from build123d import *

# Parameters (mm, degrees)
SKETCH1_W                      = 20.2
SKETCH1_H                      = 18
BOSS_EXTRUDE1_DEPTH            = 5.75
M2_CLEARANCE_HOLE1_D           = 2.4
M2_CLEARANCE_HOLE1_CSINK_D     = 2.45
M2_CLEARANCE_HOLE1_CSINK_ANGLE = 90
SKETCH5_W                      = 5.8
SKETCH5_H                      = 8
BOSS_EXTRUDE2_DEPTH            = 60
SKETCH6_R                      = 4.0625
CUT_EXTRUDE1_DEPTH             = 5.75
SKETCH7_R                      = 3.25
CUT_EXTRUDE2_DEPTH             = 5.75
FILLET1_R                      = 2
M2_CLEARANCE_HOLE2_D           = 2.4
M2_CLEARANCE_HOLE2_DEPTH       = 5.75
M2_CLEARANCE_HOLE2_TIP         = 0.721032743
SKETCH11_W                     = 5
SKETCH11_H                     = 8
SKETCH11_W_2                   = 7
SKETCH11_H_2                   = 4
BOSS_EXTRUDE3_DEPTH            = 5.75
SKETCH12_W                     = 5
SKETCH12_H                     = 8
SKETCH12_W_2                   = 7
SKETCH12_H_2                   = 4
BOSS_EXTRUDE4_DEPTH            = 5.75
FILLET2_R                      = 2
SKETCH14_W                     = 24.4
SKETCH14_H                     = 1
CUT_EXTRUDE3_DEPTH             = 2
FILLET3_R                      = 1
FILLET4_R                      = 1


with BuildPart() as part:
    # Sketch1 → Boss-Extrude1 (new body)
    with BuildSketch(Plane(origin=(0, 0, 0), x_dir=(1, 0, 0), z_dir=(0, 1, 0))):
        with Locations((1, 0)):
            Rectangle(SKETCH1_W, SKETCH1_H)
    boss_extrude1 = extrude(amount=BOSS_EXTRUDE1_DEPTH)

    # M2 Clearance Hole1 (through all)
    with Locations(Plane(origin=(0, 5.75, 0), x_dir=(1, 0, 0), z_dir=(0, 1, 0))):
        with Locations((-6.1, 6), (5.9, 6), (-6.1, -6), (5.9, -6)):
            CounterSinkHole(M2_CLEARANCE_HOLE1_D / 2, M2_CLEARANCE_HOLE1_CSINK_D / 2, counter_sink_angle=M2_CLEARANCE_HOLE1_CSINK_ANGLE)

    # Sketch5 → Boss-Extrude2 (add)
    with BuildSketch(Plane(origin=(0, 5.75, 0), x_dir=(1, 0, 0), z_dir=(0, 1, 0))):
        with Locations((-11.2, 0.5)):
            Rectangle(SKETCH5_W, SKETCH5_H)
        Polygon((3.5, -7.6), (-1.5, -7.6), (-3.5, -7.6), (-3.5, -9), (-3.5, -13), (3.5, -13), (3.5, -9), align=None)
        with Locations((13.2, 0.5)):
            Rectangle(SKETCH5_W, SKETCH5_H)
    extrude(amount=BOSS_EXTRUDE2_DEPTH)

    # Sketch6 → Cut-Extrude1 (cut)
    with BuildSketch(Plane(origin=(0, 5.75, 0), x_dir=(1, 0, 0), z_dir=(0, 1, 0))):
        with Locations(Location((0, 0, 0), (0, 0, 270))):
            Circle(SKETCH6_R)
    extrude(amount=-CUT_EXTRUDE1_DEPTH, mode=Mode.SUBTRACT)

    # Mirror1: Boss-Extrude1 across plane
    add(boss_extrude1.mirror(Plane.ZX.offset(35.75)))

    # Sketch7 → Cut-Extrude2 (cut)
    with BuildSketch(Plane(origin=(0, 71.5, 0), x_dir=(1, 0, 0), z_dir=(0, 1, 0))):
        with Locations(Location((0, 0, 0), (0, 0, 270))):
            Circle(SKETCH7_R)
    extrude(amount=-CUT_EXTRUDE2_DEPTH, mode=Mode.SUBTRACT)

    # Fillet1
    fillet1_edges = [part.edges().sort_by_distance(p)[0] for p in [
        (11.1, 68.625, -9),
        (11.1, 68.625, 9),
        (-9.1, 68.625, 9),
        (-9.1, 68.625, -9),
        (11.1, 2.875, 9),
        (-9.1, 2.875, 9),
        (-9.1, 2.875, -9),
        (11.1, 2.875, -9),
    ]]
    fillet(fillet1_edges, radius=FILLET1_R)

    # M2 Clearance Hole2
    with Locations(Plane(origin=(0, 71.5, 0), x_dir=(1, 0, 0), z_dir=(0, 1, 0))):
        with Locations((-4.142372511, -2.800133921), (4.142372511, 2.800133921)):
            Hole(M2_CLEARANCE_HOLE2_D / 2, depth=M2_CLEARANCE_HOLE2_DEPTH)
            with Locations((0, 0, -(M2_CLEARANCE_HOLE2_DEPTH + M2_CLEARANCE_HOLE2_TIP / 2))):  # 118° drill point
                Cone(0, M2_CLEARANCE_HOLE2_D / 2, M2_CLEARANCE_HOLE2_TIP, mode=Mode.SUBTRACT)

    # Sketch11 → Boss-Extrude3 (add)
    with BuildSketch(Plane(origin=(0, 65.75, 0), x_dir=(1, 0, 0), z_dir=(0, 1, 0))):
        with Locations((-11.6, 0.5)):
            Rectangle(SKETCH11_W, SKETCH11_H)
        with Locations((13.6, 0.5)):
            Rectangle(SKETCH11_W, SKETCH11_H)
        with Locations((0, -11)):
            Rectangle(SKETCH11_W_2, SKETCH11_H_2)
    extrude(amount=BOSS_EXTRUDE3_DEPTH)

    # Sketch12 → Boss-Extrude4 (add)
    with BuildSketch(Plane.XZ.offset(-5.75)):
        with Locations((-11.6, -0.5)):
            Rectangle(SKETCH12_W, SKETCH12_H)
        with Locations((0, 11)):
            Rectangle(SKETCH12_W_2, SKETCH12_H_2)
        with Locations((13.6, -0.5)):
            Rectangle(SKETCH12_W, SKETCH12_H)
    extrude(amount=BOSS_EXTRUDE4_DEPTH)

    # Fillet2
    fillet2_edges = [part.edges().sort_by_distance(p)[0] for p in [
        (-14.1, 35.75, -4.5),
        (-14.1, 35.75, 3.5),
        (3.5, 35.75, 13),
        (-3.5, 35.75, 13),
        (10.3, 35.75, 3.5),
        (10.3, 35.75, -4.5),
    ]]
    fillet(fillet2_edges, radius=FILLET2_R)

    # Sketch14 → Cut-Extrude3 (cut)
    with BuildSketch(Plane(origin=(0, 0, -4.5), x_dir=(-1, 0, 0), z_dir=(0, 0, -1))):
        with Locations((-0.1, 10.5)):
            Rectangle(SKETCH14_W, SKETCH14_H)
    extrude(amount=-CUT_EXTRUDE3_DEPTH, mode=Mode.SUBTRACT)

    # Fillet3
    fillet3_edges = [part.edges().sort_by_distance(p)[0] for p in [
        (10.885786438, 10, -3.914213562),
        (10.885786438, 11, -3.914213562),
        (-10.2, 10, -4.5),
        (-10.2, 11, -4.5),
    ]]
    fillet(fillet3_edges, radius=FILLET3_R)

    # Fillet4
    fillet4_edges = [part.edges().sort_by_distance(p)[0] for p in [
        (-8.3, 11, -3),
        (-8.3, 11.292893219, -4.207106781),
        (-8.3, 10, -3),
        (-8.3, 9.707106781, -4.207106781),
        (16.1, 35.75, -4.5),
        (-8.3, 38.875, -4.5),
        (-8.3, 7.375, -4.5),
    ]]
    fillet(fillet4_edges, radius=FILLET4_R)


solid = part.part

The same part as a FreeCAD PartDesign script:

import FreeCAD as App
import Part
import Sketcher

V = App.Vector
Q = App.Units.Quantity


def edges_at(feature, points):
    """Names of the edges that pass closest to the given points."""
    edges = feature.Shape.Edges
    near = lambda p: min(range(len(edges)), key=lambda i: edges[i].distToShape(Part.Vertex(*p))[0])
    return sorted({f"Edge{near(p) + 1}" for p in points})

doc = App.newDocument("Part")
body = doc.addObject("PartDesign::Body", "Body")

# Sketch on XZ plane
sketch1 = body.newObject("Sketcher::SketchObject", "Sketch")
sketch1.AttachmentSupport = (doc.getObject("XZ_Plane"), [""])
sketch1.MapMode = "FlatFace"
sketch1.addGeometry([
    Part.LineSegment(V(-9, -9, 0), V(-9, 9, 0)),
    Part.LineSegment(V(-9, 9, 0), V(11, 9, 0)),
    Part.LineSegment(V(11, 9, 0), V(11, -9, 0)),
    Part.LineSegment(V(11, -9, 0), V(-9, -9, 0)),
], False)
sketch1.addConstraint([
    Sketcher.Constraint("Coincident", 0, 2, 1, 1),
    Sketcher.Constraint("Coincident", 1, 2, 2, 1),
    Sketcher.Constraint("Coincident", 2, 2, 3, 1),
    Sketcher.Constraint("Coincident", 3, 2, 0, 1),
    Sketcher.Constraint("Vertical", 0),
    Sketcher.Constraint("Horizontal", 1),
    Sketcher.Constraint("Vertical", 2),
    Sketcher.Constraint("Horizontal", 3),
    Sketcher.Constraint("DistanceY", 0, 1, 0, 2, Q("18 mm")),
    Sketcher.Constraint("DistanceX", 1, 1, 1, 2, Q("20.2 mm")),
    Sketcher.Constraint("DistanceY", -1, 1, 0, 2, Q("9 mm")),
    Sketcher.Constraint("DistanceX", 0, 2, -1, 1, Q("9.1 mm")),
])
pad1 = body.newObject("PartDesign::Pad", "Pad")
pad1.Profile = sketch1
pad1.Length = 5.75
pad1.Reversed = True

# Sketch on XZ plane
sketch2 = body.newObject("Sketcher::SketchObject", "Sketch001")
sketch2.AttachmentSupport = (doc.getObject("XZ_Plane"), [""])
sketch2.MapMode = "FlatFace"
sketch2.AttachmentOffset = App.Placement(V(0, 0, -5.75), App.Rotation())
sketch2.addGeometry([
    Part.Circle(V(-6.1, -6, 0), V(0, 0, 1), 1.2),
    Part.Circle(V(5.9, -6, 0), V(0, 0, 1), 1.2),
    Part.Circle(V(-6.1, 6, 0), V(0, 0, 1), 1.2),
    Part.Circle(V(5.9, 6, 0), V(0, 0, 1), 1.2),
], False)
sketch2.addConstraint([
    Sketcher.Constraint("Equal", 0, 1),
    Sketcher.Constraint("Equal", 1, 2),
    Sketcher.Constraint("Equal", 2, 3),
    Sketcher.Constraint("Symmetric", 0, 3, 2, 3, -1),
    Sketcher.Constraint("Symmetric", 1, 3, 3, 3, -1),
    Sketcher.Constraint("Horizontal", 0, 3, 1, 3),
    Sketcher.Constraint("Diameter", 0, Q("2.4 mm")),
    Sketcher.Constraint("DistanceY", 0, 3, -1, 1, Q("6 mm")),
    Sketcher.Constraint("DistanceX", 0, 3, 1, 3, Q("12 mm")),
    Sketcher.Constraint("DistanceX", 0, 3, -1, 1, Q("6.1 mm")),
])
doc.recompute()
hole = body.newObject("PartDesign::Hole", "Hole")
hole.Profile = sketch2
hole.ThreadType = "None"
hole.Diameter = 2.4
hole.DepthType = "ThroughAll"
hole.HoleCutType = "Countersink"
hole.HoleCutDiameter = 2.45
hole.HoleCutCountersinkAngle = 90
hole.Reversed = True

# Sketch on XZ plane
sketch3 = body.newObject("Sketcher::SketchObject", "Sketch002")
sketch3.AttachmentSupport = (doc.getObject("XZ_Plane"), [""])
sketch3.MapMode = "FlatFace"
sketch3.AttachmentOffset = App.Placement(V(0, 0, -5.75), App.Rotation())
sketch3.addGeometry([
    Part.LineSegment(V(-14, -4, 0), V(-14, 4, 0)),  # 0
    Part.LineSegment(V(-14, 4, 0), V(-8, 4, 0)),  # 1
    Part.LineSegment(V(-8, 4, 0), V(-8, -4, 0)),  # 2
    Part.LineSegment(V(-8, -4, 0), V(-14, -4, 0)),  # 3
    Part.LineSegment(V(4, 8, 0), V(-4, 8, 0)),  # 4
    Part.LineSegment(V(-4, 8, 0), V(-4, 13, 0)),  # 5
    Part.LineSegment(V(-4, 13, 0), V(4, 13, 0)),  # 6
    Part.LineSegment(V(4, 13, 0), V(4, 8, 0)),  # 7
    Part.LineSegment(V(10, -4, 0), V(10, 4, 0)),  # 8
    Part.LineSegment(V(10, 4, 0), V(16, 4, 0)),  # 9
    Part.LineSegment(V(16, 4, 0), V(16, -4, 0)),  # 10
    Part.LineSegment(V(16, -4, 0), V(10, -4, 0)),  # 11
], False)
sketch3.addConstraint([
    Sketcher.Constraint("Coincident", 0, 2, 1, 1),
    Sketcher.Constraint("Coincident", 1, 2, 2, 1),
    Sketcher.Constraint("Coincident", 2, 2, 3, 1),
    Sketcher.Constraint("Coincident", 3, 2, 0, 1),
    Sketcher.Constraint("Coincident", 4, 2, 5, 1),
    Sketcher.Constraint("Coincident", 5, 2, 6, 1),
    Sketcher.Constraint("Coincident", 6, 2, 7, 1),
    Sketcher.Constraint("Coincident", 7, 2, 4, 1),
    Sketcher.Constraint("Coincident", 8, 2, 9, 1),
    Sketcher.Constraint("Coincident", 9, 2, 10, 1),
    Sketcher.Constraint("Coincident", 10, 2, 11, 1),
    Sketcher.Constraint("Coincident", 11, 2, 8, 1),
    Sketcher.Constraint("Vertical", 0),
    Sketcher.Constraint("Horizontal", 1),
    Sketcher.Constraint("Vertical", 2),
    Sketcher.Constraint("Horizontal", 3),
    Sketcher.Constraint("Horizontal", 4),
    Sketcher.Constraint("Vertical", 5),
    Sketcher.Constraint("Horizontal", 6),
    Sketcher.Constraint("Vertical", 7),
    Sketcher.Constraint("Vertical", 8),
    Sketcher.Constraint("Horizontal", 9),
    Sketcher.Constraint("Vertical", 10),
    Sketcher.Constraint("Horizontal", 11),
    Sketcher.Constraint("Horizontal", 1, 2, 8, 2),
    Sketcher.Constraint("Horizontal", 3, 2, 10, 2),
    Sketcher.Constraint("Equal", 3, 9),
    Sketcher.Constraint("DistanceX", 4, 2, 4, 1, Q("7 mm")),
    Sketcher.Constraint("DistanceY", 0, 1, 0, 2, Q("8 mm")),
    Sketcher.Constraint("DistanceX", 1, 1, 1, 2, Q("5.8 mm")),
    Sketcher.Constraint("DistanceY", 5, 1, 5, 2, Q("5.4 mm")),
    Sketcher.Constraint("DistanceY", -1, 1, 5, 2, Q("13 mm")),
    Sketcher.Constraint("DistanceX", 0, 2, -1, 1, Q("14.1 mm")),
    Sketcher.Constraint("DistanceY", -1, 1, 0, 2, Q("3.5 mm")),
    Sketcher.Constraint("DistanceX", 4, 2, -1, 1, Q("3.5 mm")),
    Sketcher.Constraint("DistanceX", -1, 1, 8, 2, Q("10.3 mm")),
])
pad2 = body.newObject("PartDesign::Pad", "Pad001")
pad2.Profile = sketch3
pad2.Length = 60
pad2.Reversed = True

# Sketch on XZ plane
sketch4 = body.newObject("Sketcher::SketchObject", "Sketch003")
sketch4.AttachmentSupport = (doc.getObject("XZ_Plane"), [""])
sketch4.MapMode = "FlatFace"
sketch4.AttachmentOffset = App.Placement(V(0, 0, -5.75), App.Rotation())
sketch4.addGeometry(Part.Circle(V(0, 0, 0), V(0, 0, 1), 4.1), False)
sketch4.addConstraint([
    Sketcher.Constraint("Coincident", 0, 3, -1, 1),
    Sketcher.Constraint("Diameter", 0, Q("8.125 mm")),
])
pocket1 = body.newObject("PartDesign::Pocket", "Pocket")
pocket1.Profile = sketch4
pocket1.Length = 5.75
pocket1.Reversed = True
doc.recompute()

datumplane = body.newObject("PartDesign::Plane", "DatumPlane")
datumplane.AttachmentSupport = (doc.getObject("XZ_Plane"), [""])
datumplane.MapMode = "FlatFace"
datumplane.AttachmentOffset = App.Placement(V(0, 0, -35.75), App.Rotation())
mirrored = body.newObject("PartDesign::Mirrored", "Mirrored")
mirrored.Originals = [pad1]
mirrored.MirrorPlane = (datumplane, [""])
body.Tip = mirrored

# Sketch on XZ plane
sketch5 = body.newObject("Sketcher::SketchObject", "Sketch004")
sketch5.AttachmentSupport = (doc.getObject("XZ_Plane"), [""])
sketch5.MapMode = "FlatFace"
sketch5.AttachmentOffset = App.Placement(V(0, 0, -71.5), App.Rotation())
sketch5.addGeometry(Part.Circle(V(0, 0, 0), V(0, 0, 1), 3.2), False)
sketch5.addConstraint([
    Sketcher.Constraint("Coincident", 0, 3, -1, 1),
    Sketcher.Constraint("Diameter", 0, Q("6.5 mm")),
])
pocket2 = body.newObject("PartDesign::Pocket", "Pocket001")
pocket2.Profile = sketch5
pocket2.Length = 5.75
pocket2.Reversed = True
doc.recompute()

fillet = body.newObject("PartDesign::Fillet", "Fillet")
fillet.Base = (pocket2, edges_at(pocket2, [
    (11.1, 68.625, -9),
    (11.1, 68.625, 9),
    (-9.1, 68.625, 9),
    (-9.1, 68.625, -9),
    (11.1, 2.875, 9),
    (-9.1, 2.875, 9),
    (-9.1, 2.875, -9),
    (11.1, 2.875, -9),
]))
fillet.Radius = 2

# Sketch on XZ plane
sketch6 = body.newObject("Sketcher::SketchObject", "Sketch005")
sketch6.AttachmentSupport = (doc.getObject("XZ_Plane"), [""])
sketch6.MapMode = "FlatFace"
sketch6.AttachmentOffset = App.Placement(V(0, 0, -71.5), App.Rotation())
sketch6.addGeometry([
    Part.Circle(V(-4.1, 2.8, 0), V(0, 0, 1), 1.2),
    Part.Circle(V(4.1, -2.8, 0), V(0, 0, 1), 1.2),
], False)
sketch6.addConstraint([
    Sketcher.Constraint("Equal", 0, 1),
    Sketcher.Constraint("Symmetric", 0, 3, 1, 3, -1, 1),
    Sketcher.Constraint("Diameter", 0, Q("2.4 mm")),
    Sketcher.Constraint("DistanceX", 0, 3, -1, 1, Q("4.142373 mm")),
    Sketcher.Constraint("DistanceY", -1, 1, 0, 3, Q("2.800134 mm")),
])
doc.recompute()
hole2 = body.newObject("PartDesign::Hole", "Hole001")
hole2.Profile = sketch6
hole2.ThreadType = "None"
hole2.Diameter = 2.4
hole2.DepthType = "Dimension"
hole2.Depth = 5.75
hole2.DrillPoint = "Angled"
hole2.DrillPointAngle = 118
hole2.Reversed = True

# Sketch on XZ plane
sketch7 = body.newObject("Sketcher::SketchObject", "Sketch006")
sketch7.AttachmentSupport = (doc.getObject("XZ_Plane"), [""])
sketch7.MapMode = "FlatFace"
sketch7.AttachmentOffset = App.Placement(V(0, 0, -65.75), App.Rotation())
sketch7.addGeometry([
    Part.LineSegment(V(-14.1, -4.5, 0), V(-14.1, 3.5, 0)),  # 0
    Part.LineSegment(V(-14.1, 3.5, 0), V(-9.1, 3.5, 0)),  # 1
    Part.LineSegment(V(-9.1, 3.5, 0), V(-9.1, -4.5, 0)),  # 2
    Part.LineSegment(V(-9.1, -4.5, 0), V(-14.1, -4.5, 0)),  # 3
    Part.LineSegment(V(11.1, -4.5, 0), V(11.1, 3.5, 0)),  # 4
    Part.LineSegment(V(11.1, 3.5, 0), V(16.1, 3.5, 0)),  # 5
    Part.LineSegment(V(16.1, 3.5, 0), V(16.1, -4.5, 0)),  # 6
    Part.LineSegment(V(16.1, -4.5, 0), V(11.1, -4.5, 0)),  # 7
    Part.LineSegment(V(-3.5, 9, 0), V(-3.5, 13, 0)),  # 8
    Part.LineSegment(V(-3.5, 13, 0), V(3.5, 13, 0)),  # 9
    Part.LineSegment(V(3.5, 13, 0), V(3.5, 9, 0)),  # 10
    Part.LineSegment(V(3.5, 9, 0), V(-3.5, 9, 0)),  # 11
], False)
sketch7.addConstraint([
    Sketcher.Constraint("Coincident", 0, 2, 1, 1),
    Sketcher.Constraint("Coincident", 1, 2, 2, 1),
    Sketcher.Constraint("Coincident", 2, 2, 3, 1),
    Sketcher.Constraint("Coincident", 3, 2, 0, 1),
    Sketcher.Constraint("Coincident", 4, 2, 5, 1),
    Sketcher.Constraint("Coincident", 5, 2, 6, 1),
    Sketcher.Constraint("Coincident", 6, 2, 7, 1),
    Sketcher.Constraint("Coincident", 7, 2, 4, 1),
    Sketcher.Constraint("Coincident", 8, 2, 9, 1),
    Sketcher.Constraint("Coincident", 9, 2, 10, 1),
    Sketcher.Constraint("Coincident", 10, 2, 11, 1),
    Sketcher.Constraint("Coincident", 11, 2, 8, 1),
    Sketcher.Constraint("Vertical", 0),
    Sketcher.Constraint("Horizontal", 1),
    Sketcher.Constraint("Vertical", 2),
    Sketcher.Constraint("Horizontal", 3),
    Sketcher.Constraint("Vertical", 4),
    Sketcher.Constraint("Horizontal", 5),
    Sketcher.Constraint("Vertical", 6),
    Sketcher.Constraint("Horizontal", 7),
    Sketcher.Constraint("Vertical", 8),
    Sketcher.Constraint("Horizontal", 9),
    Sketcher.Constraint("Vertical", 10),
    Sketcher.Constraint("Horizontal", 11),
    Sketcher.Constraint("Horizontal", 1, 2, 4, 2),
    Sketcher.Constraint("Horizontal", 3, 2, 6, 2),
    Sketcher.Constraint("Equal", 3, 5),
    Sketcher.Constraint("DistanceX", 1, 1, 1, 2, Q("5 mm")),
    Sketcher.Constraint("DistanceX", 9, 1, 9, 2, Q("7 mm")),
    Sketcher.Constraint("DistanceY", 0, 1, 0, 2, Q("8 mm")),
    Sketcher.Constraint("DistanceY", 8, 1, 8, 2, Q("4 mm")),
    Sketcher.Constraint("DistanceY", -1, 1, 8, 2, Q("13 mm")),
    Sketcher.Constraint("DistanceX", 0, 2, -1, 1, Q("14.1 mm")),
    Sketcher.Constraint("DistanceY", -1, 1, 0, 2, Q("3.5 mm")),
    Sketcher.Constraint("DistanceX", -1, 1, 4, 2, Q("11.1 mm")),
    Sketcher.Constraint("DistanceX", 8, 2, -1, 1, Q("3.5 mm")),
])
pad3 = body.newObject("PartDesign::Pad", "Pad002")
pad3.Profile = sketch7
pad3.Length = 5.75
pad3.Reversed = True

# Sketch on XZ plane
sketch8 = body.newObject("Sketcher::SketchObject", "Sketch007")
sketch8.AttachmentSupport = (doc.getObject("XZ_Plane"), [""])
sketch8.MapMode = "FlatFace"
sketch8.AttachmentOffset = App.Placement(V(0, 0, -5.75), App.Rotation())
sketch8.addGeometry([
    Part.LineSegment(V(-14.1, 3.5, 0), V(-14.1, -4.5, 0)),  # 0
    Part.LineSegment(V(-14.1, -4.5, 0), V(-9.1, -4.5, 0)),  # 1
    Part.LineSegment(V(-9.1, -4.5, 0), V(-9.1, 3.5, 0)),  # 2
    Part.LineSegment(V(-9.1, 3.5, 0), V(-14.1, 3.5, 0)),  # 3
    Part.LineSegment(V(-3.5, 13, 0), V(-3.5, 9, 0)),  # 4
    Part.LineSegment(V(-3.5, 9, 0), V(3.5, 9, 0)),  # 5
    Part.LineSegment(V(3.5, 9, 0), V(3.5, 13, 0)),  # 6
    Part.LineSegment(V(3.5, 13, 0), V(-3.5, 13, 0)),  # 7
    Part.LineSegment(V(11.1, 3.5, 0), V(11.1, -4.5, 0)),  # 8
    Part.LineSegment(V(11.1, -4.5, 0), V(16.1, -4.5, 0)),  # 9
    Part.LineSegment(V(16.1, -4.5, 0), V(16.1, 3.5, 0)),  # 10
    Part.LineSegment(V(16.1, 3.5, 0), V(11.1, 3.5, 0)),  # 11
], False)
sketch8.addConstraint([
    Sketcher.Constraint("Coincident", 0, 2, 1, 1),
    Sketcher.Constraint("Coincident", 1, 2, 2, 1),
    Sketcher.Constraint("Coincident", 2, 2, 3, 1),
    Sketcher.Constraint("Coincident", 3, 2, 0, 1),
    Sketcher.Constraint("Coincident", 4, 2, 5, 1),
    Sketcher.Constraint("Coincident", 5, 2, 6, 1),
    Sketcher.Constraint("Coincident", 6, 2, 7, 1),
    Sketcher.Constraint("Coincident", 7, 2, 4, 1),
    Sketcher.Constraint("Coincident", 8, 2, 9, 1),
    Sketcher.Constraint("Coincident", 9, 2, 10, 1),
    Sketcher.Constraint("Coincident", 10, 2, 11, 1),
    Sketcher.Constraint("Coincident", 11, 2, 8, 1),
    Sketcher.Constraint("Vertical", 0),
    Sketcher.Constraint("Horizontal", 1),
    Sketcher.Constraint("Vertical", 2),
    Sketcher.Constraint("Horizontal", 3),
    Sketcher.Constraint("Vertical", 4),
    Sketcher.Constraint("Horizontal", 5),
    Sketcher.Constraint("Vertical", 6),
    Sketcher.Constraint("Horizontal", 7),
    Sketcher.Constraint("Vertical", 8),
    Sketcher.Constraint("Horizontal", 9),
    Sketcher.Constraint("Vertical", 10),
    Sketcher.Constraint("Horizontal", 11),
    Sketcher.Constraint("Horizontal", 1, 2, 8, 2),
    Sketcher.Constraint("Horizontal", 3, 2, 10, 2),
    Sketcher.Constraint("Equal", 3, 9),
    Sketcher.Constraint("DistanceX", 1, 1, 1, 2, Q("5 mm")),
    Sketcher.Constraint("DistanceX", 5, 1, 5, 2, Q("7 mm")),
    Sketcher.Constraint("DistanceY", 0, 2, 0, 1, Q("8 mm")),
    Sketcher.Constraint("DistanceY", 4, 2, 4, 1, Q("4 mm")),
    Sketcher.Constraint("DistanceY", -1, 1, 4, 2, Q("9 mm")),
    Sketcher.Constraint("DistanceX", 0, 2, -1, 1, Q("14.1 mm")),
    Sketcher.Constraint("DistanceY", 0, 2, -1, 1, Q("4.5 mm")),
    Sketcher.Constraint("DistanceX", 4, 2, -1, 1, Q("3.5 mm")),
    Sketcher.Constraint("DistanceX", -1, 1, 8, 2, Q("11.1 mm")),
])
pad4 = body.newObject("PartDesign::Pad", "Pad003")
pad4.Profile = sketch8
pad4.Length = 5.75
doc.recompute()

fillet2 = body.newObject("PartDesign::Fillet", "Fillet001")
fillet2.Base = (pad4, edges_at(pad4, [
    (-14.1, 35.75, -4.5),
    (-14.1, 35.75, 3.5),
    (3.5, 35.75, 13),
    (-3.5, 35.75, 13),
    (10.3, 35.75, 3.5),
    (10.3, 35.75, -4.5),
]))
fillet2.Radius = 2

# Sketch on XY plane
sketch9 = body.newObject("Sketcher::SketchObject", "Sketch008")
sketch9.AttachmentSupport = (doc.getObject("XY_Plane"), [""])
sketch9.MapMode = "FlatFace"
sketch9.AttachmentOffset = App.Placement(V(0, 0, -4.5), App.Rotation())
sketch9.addGeometry([
    Part.LineSegment(V(12.3, 11, 0), V(12.3, 10, 0)),
    Part.LineSegment(V(12.3, 10, 0), V(-12.1, 10, 0)),
    Part.LineSegment(V(-12.1, 10, 0), V(-12.1, 11, 0)),
    Part.LineSegment(V(-12.1, 11, 0), V(12.3, 11, 0)),
], False)
sketch9.addConstraint([
    Sketcher.Constraint("Coincident", 0, 2, 1, 1),
    Sketcher.Constraint("Coincident", 1, 2, 2, 1),
    Sketcher.Constraint("Coincident", 2, 2, 3, 1),
    Sketcher.Constraint("Coincident", 3, 2, 0, 1),
    Sketcher.Constraint("Vertical", 0),
    Sketcher.Constraint("Horizontal", 1),
    Sketcher.Constraint("Vertical", 2),
    Sketcher.Constraint("Horizontal", 3),
    Sketcher.Constraint("DistanceY", 0, 2, 0, 1, Q("1 mm")),
    Sketcher.Constraint("DistanceX", 1, 2, 1, 1, Q("24.4 mm")),
    Sketcher.Constraint("DistanceY", -1, 1, 0, 2, Q("10 mm")),
    Sketcher.Constraint("DistanceX", -1, 1, 0, 2, Q("12.3 mm")),
])
pocket3 = body.newObject("PartDesign::Pocket", "Pocket002")
pocket3.Profile = sketch9
pocket3.Length = 2
pocket3.Reversed = True
doc.recompute()

fillet3 = body.newObject("PartDesign::Fillet", "Fillet002")
fillet3.Base = (pocket3, edges_at(pocket3, [
    (10.886, 10, -3.914),
    (10.886, 11, -3.914),
    (-10.2, 10, -4.5),
    (-10.2, 11, -4.5),
]))
fillet3.Radius = 1
doc.recompute()

fillet4 = body.newObject("PartDesign::Fillet", "Fillet003")
fillet4.Base = (fillet3, edges_at(fillet3, [
    (-8.3, 11, -3),
    (-8.3, 11.293, -4.207),
    (-8.3, 10, -3),
    (-8.3, 9.707, -4.207),
    (16.1, 35.75, -4.5),
    (-8.3, 38.875, -4.5),
    (-8.3, 7.375, -4.5),
]))
fillet4.Radius = 1

doc.recompute()
